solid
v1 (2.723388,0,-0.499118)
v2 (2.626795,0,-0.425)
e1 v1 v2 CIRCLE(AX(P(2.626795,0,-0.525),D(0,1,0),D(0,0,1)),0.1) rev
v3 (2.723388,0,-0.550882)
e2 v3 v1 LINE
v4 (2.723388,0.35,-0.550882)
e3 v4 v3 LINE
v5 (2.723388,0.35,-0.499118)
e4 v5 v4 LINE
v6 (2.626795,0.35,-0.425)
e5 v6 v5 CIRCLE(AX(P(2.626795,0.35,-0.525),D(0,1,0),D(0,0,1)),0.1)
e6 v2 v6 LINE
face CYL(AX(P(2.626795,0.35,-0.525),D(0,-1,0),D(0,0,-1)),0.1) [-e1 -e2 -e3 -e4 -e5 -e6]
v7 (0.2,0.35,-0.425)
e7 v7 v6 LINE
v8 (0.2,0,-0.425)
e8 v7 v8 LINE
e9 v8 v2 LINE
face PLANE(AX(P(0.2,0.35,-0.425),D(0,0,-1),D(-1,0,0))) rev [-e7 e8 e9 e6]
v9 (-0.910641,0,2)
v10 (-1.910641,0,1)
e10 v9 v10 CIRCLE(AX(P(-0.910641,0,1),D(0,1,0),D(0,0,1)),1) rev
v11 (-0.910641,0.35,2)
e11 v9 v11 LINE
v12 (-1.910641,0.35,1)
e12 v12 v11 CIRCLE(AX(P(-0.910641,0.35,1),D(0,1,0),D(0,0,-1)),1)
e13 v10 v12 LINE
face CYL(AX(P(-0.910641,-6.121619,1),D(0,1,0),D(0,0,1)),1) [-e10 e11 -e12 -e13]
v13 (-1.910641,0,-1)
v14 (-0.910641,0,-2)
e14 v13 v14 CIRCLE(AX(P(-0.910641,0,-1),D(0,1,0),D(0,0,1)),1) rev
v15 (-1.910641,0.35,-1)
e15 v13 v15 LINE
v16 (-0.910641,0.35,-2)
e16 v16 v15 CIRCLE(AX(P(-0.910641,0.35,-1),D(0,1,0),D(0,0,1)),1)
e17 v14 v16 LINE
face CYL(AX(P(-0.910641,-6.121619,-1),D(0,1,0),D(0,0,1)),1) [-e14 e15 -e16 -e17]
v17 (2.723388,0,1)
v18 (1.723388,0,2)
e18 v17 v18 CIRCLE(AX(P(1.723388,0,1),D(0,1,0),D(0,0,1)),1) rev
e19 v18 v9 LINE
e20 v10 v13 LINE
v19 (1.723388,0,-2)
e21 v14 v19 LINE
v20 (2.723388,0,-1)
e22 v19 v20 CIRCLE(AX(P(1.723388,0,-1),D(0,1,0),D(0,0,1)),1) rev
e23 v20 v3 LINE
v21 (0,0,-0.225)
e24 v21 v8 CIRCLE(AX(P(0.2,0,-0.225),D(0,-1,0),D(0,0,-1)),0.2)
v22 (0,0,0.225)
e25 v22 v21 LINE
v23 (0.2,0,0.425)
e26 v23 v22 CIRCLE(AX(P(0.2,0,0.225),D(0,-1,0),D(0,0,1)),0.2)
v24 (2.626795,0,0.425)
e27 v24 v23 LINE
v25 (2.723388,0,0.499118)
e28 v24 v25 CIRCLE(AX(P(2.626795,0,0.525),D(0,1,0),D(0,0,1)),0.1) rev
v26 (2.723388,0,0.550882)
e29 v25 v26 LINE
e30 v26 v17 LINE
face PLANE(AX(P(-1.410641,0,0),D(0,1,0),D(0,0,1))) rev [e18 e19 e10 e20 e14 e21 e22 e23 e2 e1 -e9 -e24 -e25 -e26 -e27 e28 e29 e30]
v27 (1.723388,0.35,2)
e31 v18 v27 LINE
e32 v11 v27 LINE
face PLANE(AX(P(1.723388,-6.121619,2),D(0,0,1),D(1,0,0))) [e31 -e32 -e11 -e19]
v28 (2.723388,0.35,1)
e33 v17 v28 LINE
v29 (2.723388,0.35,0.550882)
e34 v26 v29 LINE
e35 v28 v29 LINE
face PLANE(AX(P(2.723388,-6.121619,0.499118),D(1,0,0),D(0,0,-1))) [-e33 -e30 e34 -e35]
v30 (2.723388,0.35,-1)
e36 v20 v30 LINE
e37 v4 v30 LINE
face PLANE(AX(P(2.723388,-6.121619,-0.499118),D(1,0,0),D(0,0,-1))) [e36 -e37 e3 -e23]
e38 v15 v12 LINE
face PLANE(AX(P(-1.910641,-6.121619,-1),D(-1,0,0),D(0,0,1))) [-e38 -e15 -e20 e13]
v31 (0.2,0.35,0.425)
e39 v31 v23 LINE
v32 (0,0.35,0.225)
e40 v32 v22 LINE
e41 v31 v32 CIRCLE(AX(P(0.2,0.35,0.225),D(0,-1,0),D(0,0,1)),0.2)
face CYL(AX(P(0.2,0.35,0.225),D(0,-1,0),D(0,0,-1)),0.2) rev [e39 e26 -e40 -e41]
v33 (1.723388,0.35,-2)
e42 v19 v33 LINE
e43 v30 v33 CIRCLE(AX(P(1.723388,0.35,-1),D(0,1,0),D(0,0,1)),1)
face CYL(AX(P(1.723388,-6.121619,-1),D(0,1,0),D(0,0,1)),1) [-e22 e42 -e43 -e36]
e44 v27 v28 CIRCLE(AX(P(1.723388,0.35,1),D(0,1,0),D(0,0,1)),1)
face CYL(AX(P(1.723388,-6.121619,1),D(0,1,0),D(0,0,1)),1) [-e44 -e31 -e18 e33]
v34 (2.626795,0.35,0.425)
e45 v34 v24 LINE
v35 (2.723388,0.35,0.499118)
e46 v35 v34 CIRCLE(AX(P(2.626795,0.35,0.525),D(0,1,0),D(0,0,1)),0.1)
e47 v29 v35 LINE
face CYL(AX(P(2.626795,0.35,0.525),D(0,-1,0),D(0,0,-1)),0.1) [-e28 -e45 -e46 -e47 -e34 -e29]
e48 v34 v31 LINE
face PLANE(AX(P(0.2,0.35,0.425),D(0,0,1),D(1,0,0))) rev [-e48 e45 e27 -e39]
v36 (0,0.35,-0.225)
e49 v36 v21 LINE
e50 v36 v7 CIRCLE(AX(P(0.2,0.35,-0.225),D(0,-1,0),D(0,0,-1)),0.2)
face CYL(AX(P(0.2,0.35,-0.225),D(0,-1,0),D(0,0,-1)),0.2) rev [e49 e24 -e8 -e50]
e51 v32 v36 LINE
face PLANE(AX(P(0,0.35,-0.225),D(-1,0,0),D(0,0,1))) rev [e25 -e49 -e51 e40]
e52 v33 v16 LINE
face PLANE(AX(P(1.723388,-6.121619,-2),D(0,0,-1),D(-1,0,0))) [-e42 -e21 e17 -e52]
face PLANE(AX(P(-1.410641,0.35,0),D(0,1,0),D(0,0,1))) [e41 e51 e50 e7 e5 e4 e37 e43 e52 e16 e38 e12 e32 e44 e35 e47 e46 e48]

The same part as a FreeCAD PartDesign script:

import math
import FreeCAD as App
import Part
import Sketcher

V = App.Vector
Q = App.Units.Quantity


def edges_at(feature, points):
    """Names of the edges that pass closest to the given points."""
    edges = feature.Shape.Edges
    near = lambda p: min(range(len(edges)), key=lambda i: edges[i].distToShape(Part.Vertex(*p))[0])
    return sorted({f"Edge{near(p) + 1}" for p in points})

doc = App.newDocument("Part")
body = doc.addObject("PartDesign::Body", "Body")

# Sketch on XZ plane
sketch1 = doc.addObject("Sketcher::SketchObject", "Sketch")
body.addObject(sketch1)
sketch1.AttachmentSupport = (doc.XZ_Plane, [""])
sketch1.MapMode = "FlatFace"
sketch1.addGeometry(Part.LineSegment(V(0, 0.23, 0), V(0, -0.23, 0)), False)
sketch1.addGeometry(Part.ArcOfCircle(Part.Circle(V(0.2, -0.22, 0), V(0, 0, 1), 0.2), math.radians(-180), math.radians(-90)), False)
sketch1.addGeometry(Part.LineSegment(V(0.2, -0.42, 0), V(3, -0.42, 0)), False)
sketch1.addGeometry(Part.LineSegment(V(3, -0.42, 0), V(1.61, -1.23, 0)), False)
sketch1.addGeometry(Part.LineSegment(V(1.61, -1.23, 0), V(-0.39, -1.23, 0)), False)
sketch1.addGeometry(Part.LineSegment(V(-0.39, -1.23, 0), V(-1.11, -0.5, 0)), False)
sketch1.addGeometry(Part.LineSegment(V(-1.11, -0.5, 0), V(-1.41, -0.5, 0)), False)
sketch1.addGeometry(Part.ArcOfCircle(Part.Circle(V(-1.41, 0, 0), V(0, 0, 1), 0.5), math.radians(90), math.radians(270)), False)
sketch1.addGeometry(Part.LineSegment(V(-1.41, 0.5, 0), V(-1.11, 0.5, 0)), False)
sketch1.addGeometry(Part.LineSegment(V(-1.11, 0.5, 0), V(-0.39, 1.23, 0)), False)
sketch1.addGeometry(Part.LineSegment(V(-0.39, 1.23, 0), V(1.61, 1.23, 0)), False)
sketch1.addGeometry(Part.LineSegment(V(1.61, 1.23, 0), V(3, 0.42, 0)), False)
sketch1.addGeometry(Part.LineSegment(V(3, 0.42, 0), V(0.2, 0.42, 0)), False)
sketch1.addGeometry(Part.ArcOfCircle(Part.Circle(V(0.2, 0.22, 0), V(0, 0, 1), 0.2), math.radians(90), math.radians(180)), False)
sketch1.addConstraint(Sketcher.Constraint("Tangent", 0, 2, 1, 1))
sketch1.addConstraint(Sketcher.Constraint("Tangent", 1, 2, 2, 1))
sketch1.addConstraint(Sketcher.Constraint("Coincident", 2, 2, 3, 1))
sketch1.addConstraint(Sketcher.Constraint("Coincident", 3, 2, 4, 1))
sketch1.addConstraint(Sketcher.Constraint("Coincident", 4, 2, 5, 1))
sketch1.addConstraint(Sketcher.Constraint("Coincident", 5, 2, 6, 1))
sketch1.addConstraint(Sketcher.Constraint("Tangent", 6, 2, 7, 2))
sketch1.addConstraint(Sketcher.Constraint("Tangent", 7, 1, 8, 1))
sketch1.addConstraint(Sketcher.Constraint("Coincident", 8, 2, 9, 1))
sketch1.addConstraint(Sketcher.Constraint("Coincident", 9, 2, 10, 1))
sketch1.addConstraint(Sketcher.Constraint("Coincident", 10, 2, 11, 1))
sketch1.addConstraint(Sketcher.Constraint("Coincident", 11, 2, 12, 1))
sketch1.addConstraint(Sketcher.Constraint("Tangent", 12, 2, 13, 1))
sketch1.addConstraint(Sketcher.Constraint("Tangent", 13, 2, 0, 1))
sketch1.addConstraint(Sketcher.Constraint("Vertical", 0))
sketch1.addConstraint(Sketcher.Constraint("Horizontal", 2))
sketch1.addConstraint(Sketcher.Constraint("Horizontal", 4))
sketch1.addConstraint(Sketcher.Constraint("Horizontal", 6))
sketch1.addConstraint(Sketcher.Constraint("Horizontal", 8))
sketch1.addConstraint(Sketcher.Constraint("Horizontal", 10))
sketch1.addConstraint(Sketcher.Constraint("Horizontal", 12))
sketch1.addConstraint(Sketcher.Constraint("Equal", 1, 13))
sketch1.addConstraint(Sketcher.Constraint("Symmetric", 0, 2, 13, 2, -1, 1))
sketch1.addConstraint(Sketcher.Constraint("Symmetric", 5, 2, 8, 2, -1))
sketch1.addConstraint(Sketcher.Constraint("Symmetric", 4, 2, 9, 2, -1))
sketch1.addConstraint(Sketcher.Constraint("Perpendicular", 5, 9))
sketch1.addConstraint(Sketcher.Constraint("Vertical", 3, 2, 10, 2))
sketch1.addConstraint(Sketcher.Constraint("Vertical", 2, 2, 11, 2))
sketch1.addConstraint(Sketcher.Constraint("Radius", 1, Q("0.2 mm")))
sketch1.addConstraint(Sketcher.Constraint("Radius", 7, Q("0.5 mm")))
sketch1.addConstraint(Sketcher.Constraint("DistanceX", 4, 2, 4, 1, Q("2 mm")))
sketch1.addConstraint(Sketcher.Constraint("Angle", 3, Q("-150 deg")))
sketch1.addConstraint(Sketcher.Constraint("DistanceX", 2, 1, 2, 2, Q("2.8 mm")))
sketch1.addConstraint(Sketcher.Constraint("DistanceX", 6, 2, 6, 1, Q("0.3 mm")))
sketch1.addConstraint(Sketcher.Constraint("DistanceY", 3, 2, 1, 3, Q("1 mm")))
sketch1.addConstraint(Sketcher.Constraint("DistanceY", 0, 2, 0, 1, Q("0.45 mm")))
pad1 = doc.addObject("PartDesign::Pad", "Pad")
body.addObject(pad1)
pad1.Profile = sketch1
pad1.Length = 0.35
pad1.Reversed = True
doc.recompute()

fillet = doc.addObject("PartDesign::Fillet", "Fillet")
body.addObject(fillet)
fillet.Base = (pad1, edges_at(pad1, [(3, 0.175, -0.425), (3, 0.175, 0.425)]))
fillet.Radius = 0.1

# Sketch on XZ plane
sketch2 = doc.addObject("Sketcher::SketchObject", "Sketch001")
body.addObject(sketch2)
sketch2.AttachmentSupport = (doc.XZ_Plane, [""])
sketch2.MapMode = "FlatFace"
sketch2.AttachmentOffset = App.Placement(V(0, 0, -0.35), App.Rotation())
sketch2.addGeometry(Part.LineSegment(V(2.7, -0.5, 0), V(2.7, -1, 0)), False)
sketch2.addGeometry(Part.ArcOfCircle(Part.Circle(V(1.7, -1, 0), V(0, 0, 1), 1), math.radians(-90), math.radians(0)), False)
sketch2.addGeometry(Part.LineSegment(V(1.7, -2, 0), V(-0.9, -2, 0)), False)
sketch2.addGeometry(Part.ArcOfCircle(Part.Circle(V(-0.9, -1, 0), V(0, 0, 1), 1), math.radians(-180), math.radians(-90)), False)
sketch2.addGeometry(Part.LineSegment(V(-1.9, -1, 0), V(-1.9, 1, 0)), False)
sketch2.addGeometry(Part.ArcOfCircle(Part.Circle(V(-0.9, 1, 0), V(0, 0, 1), 1), math.radians(90), math.radians(180)), False)
sketch2.addGeometry(Part.LineSegment(V(-0.9, 2, 0), V(1.7, 2, 0)), False)
sketch2.addGeometry(Part.ArcOfCircle(Part.Circle(V(1.7, 1, 0), V(0, 0, 1), 1), math.radians(0), math.radians(90)), False)
sketch2.addGeometry(Part.LineSegment(V(2.7, 1, 0), V(2.7, 0.5, 0)), False)
sketch2.addGeometry(Part.LineSegment(V(2.7, 0.5, 0), V(-0.3, 0.5, 0)), False)
sketch2.addGeometry(Part.LineSegment(V(-0.3, 0.5, 0), V(-0.3, -0.5, 0)), False)
sketch2.addGeometry(Part.LineSegment(V(-0.3, -0.5, 0), V(2.7, -0.5, 0)), False)
sketch2.addConstraint(Sketcher.Constraint("Tangent", 0, 2, 1, 2))
sketch2.addConstraint(Sketcher.Constraint("Tangent", 1, 1, 2, 1))
sketch2.addConstraint(Sketcher.Constraint("Tangent", 2, 2, 3, 2))
sketch2.addConstraint(Sketcher.Constraint("Tangent", 3, 1, 4, 1))
sketch2.addConstraint(Sketcher.Constraint("Tangent", 4, 2, 5, 2))
sketch2.addConstraint(Sketcher.Constraint("Tangent", 5, 1, 6, 1))
sketch2.addConstraint(Sketcher.Constraint("Tangent", 6, 2, 7, 2))
sketch2.addConstraint(Sketcher.Constraint("Tangent", 7, 1, 8, 1))
sketch2.addConstraint(Sketcher.Constraint("Coincident", 8, 2, 9, 1))
sketch2.addConstraint(Sketcher.Constraint("Coincident", 9, 2, 10, 1))
sketch2.addConstraint(Sketcher.Constraint("Coincident", 10, 2, 11, 1))
sketch2.addConstraint(Sketcher.Constraint("Coincident", 11, 2, 0, 1))
sketch2.addConstraint(Sketcher.Constraint("Vertical", 0))
sketch2.addConstraint(Sketcher.Constraint("Horizontal", 2))
sketch2.addConstraint(Sketcher.Constraint("Vertical", 4))
sketch2.addConstraint(Sketcher.Constraint("Horizontal", 6))
sketch2.addConstraint(Sketcher.Constraint("Vertical", 8))
sketch2.addConstraint(Sketcher.Constraint("Horizontal", 9))
sketch2.addConstraint(Sketcher.Constraint("Vertical", 10))
sketch2.addConstraint(Sketcher.Constraint("Horizontal", 11))
sketch2.addConstraint(Sketcher.Constraint("Equal", 1, 3))
sketch2.addConstraint(Sketcher.Constraint("Equal", 3, 5))
sketch2.addConstraint(Sketcher.Constraint("Equal", 5, 7))
sketch2.addConstraint(Sketcher.Constraint("Symmetric", 1, 3, 7, 3, -1))
sketch2.addConstraint(Sketcher.Constraint("Equal", 0, 8))
sketch2.addConstraint(Sketcher.Constraint("Radius", 1, Q("1 mm")))
sketch2.addConstraint(Sketcher.Constraint("DistanceX", 9, 2, 9, 1, Q("3 mm")))
sketch2.addConstraint(Sketcher.Constraint("DistanceY", 4, 1, 4, 2, Q("2 mm")))
sketch2.addConstraint(Sketcher.Constraint("DistanceX", 2, 2, 2, 1, Q("2.634028 mm")))
sketch2.addConstraint(Sketcher.Constraint("DistanceY", 0, 2, 0, 1, Q("0.500882 mm")))
sketch2.addConstraint(Sketcher.Constraint("DistanceX", 3, 3, -1, 1, Q("0.910641 mm")))
pad2 = doc.addObject("PartDesign::Pad", "Pad001")
body.addObject(pad2)
pad2.Profile = sketch2
pad2.Length = 0.35

doc.recompute()
